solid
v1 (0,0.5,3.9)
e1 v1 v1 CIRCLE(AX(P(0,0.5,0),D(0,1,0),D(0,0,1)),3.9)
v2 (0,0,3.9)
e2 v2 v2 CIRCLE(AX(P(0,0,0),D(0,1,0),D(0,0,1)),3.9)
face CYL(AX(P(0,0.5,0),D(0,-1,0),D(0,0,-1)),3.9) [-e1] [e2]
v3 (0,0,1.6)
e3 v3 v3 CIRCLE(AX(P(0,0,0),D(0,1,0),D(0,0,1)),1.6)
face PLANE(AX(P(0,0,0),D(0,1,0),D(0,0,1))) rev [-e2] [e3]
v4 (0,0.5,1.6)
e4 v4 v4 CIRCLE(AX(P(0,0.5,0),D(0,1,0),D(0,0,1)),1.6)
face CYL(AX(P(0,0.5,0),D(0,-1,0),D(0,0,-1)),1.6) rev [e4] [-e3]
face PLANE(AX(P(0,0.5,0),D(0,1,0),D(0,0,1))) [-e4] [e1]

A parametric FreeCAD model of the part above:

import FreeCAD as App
import Part
import Sketcher

V = App.Vector

doc = App.newDocument("Part")
body = doc.addObject("PartDesign::Body", "Body")

sketch1 = body.newObject("Sketcher::SketchObject", "Sketch")
sketch1.AttachmentSupport = (doc.getObject("XZ_Plane"), [""])
sketch1.MapMode = "FlatFace"
sketch1.addGeometry([
    Part.Circle(V(0, 0, 0), V(0, 0, 1), 3.9),
    Part.Circle(V(0, 0, 0), V(0, 0, 1), 1.6),
], False)
sketch1.addConstraint([
    Sketcher.Constraint("Coincident", 0, 3, -1, 1),
    Sketcher.Constraint("Coincident", 1, 3, -1, 1),
    Sketcher.Constraint("Diameter", 0, 7.8),
    Sketcher.Constraint("Diameter", 1, 3.2),
])
pad1 = body.newObject("PartDesign::Pad", "Pad")
pad1.Profile = sketch1
pad1.Length = 0.5
pad1.Reversed = True

doc.recompute()
